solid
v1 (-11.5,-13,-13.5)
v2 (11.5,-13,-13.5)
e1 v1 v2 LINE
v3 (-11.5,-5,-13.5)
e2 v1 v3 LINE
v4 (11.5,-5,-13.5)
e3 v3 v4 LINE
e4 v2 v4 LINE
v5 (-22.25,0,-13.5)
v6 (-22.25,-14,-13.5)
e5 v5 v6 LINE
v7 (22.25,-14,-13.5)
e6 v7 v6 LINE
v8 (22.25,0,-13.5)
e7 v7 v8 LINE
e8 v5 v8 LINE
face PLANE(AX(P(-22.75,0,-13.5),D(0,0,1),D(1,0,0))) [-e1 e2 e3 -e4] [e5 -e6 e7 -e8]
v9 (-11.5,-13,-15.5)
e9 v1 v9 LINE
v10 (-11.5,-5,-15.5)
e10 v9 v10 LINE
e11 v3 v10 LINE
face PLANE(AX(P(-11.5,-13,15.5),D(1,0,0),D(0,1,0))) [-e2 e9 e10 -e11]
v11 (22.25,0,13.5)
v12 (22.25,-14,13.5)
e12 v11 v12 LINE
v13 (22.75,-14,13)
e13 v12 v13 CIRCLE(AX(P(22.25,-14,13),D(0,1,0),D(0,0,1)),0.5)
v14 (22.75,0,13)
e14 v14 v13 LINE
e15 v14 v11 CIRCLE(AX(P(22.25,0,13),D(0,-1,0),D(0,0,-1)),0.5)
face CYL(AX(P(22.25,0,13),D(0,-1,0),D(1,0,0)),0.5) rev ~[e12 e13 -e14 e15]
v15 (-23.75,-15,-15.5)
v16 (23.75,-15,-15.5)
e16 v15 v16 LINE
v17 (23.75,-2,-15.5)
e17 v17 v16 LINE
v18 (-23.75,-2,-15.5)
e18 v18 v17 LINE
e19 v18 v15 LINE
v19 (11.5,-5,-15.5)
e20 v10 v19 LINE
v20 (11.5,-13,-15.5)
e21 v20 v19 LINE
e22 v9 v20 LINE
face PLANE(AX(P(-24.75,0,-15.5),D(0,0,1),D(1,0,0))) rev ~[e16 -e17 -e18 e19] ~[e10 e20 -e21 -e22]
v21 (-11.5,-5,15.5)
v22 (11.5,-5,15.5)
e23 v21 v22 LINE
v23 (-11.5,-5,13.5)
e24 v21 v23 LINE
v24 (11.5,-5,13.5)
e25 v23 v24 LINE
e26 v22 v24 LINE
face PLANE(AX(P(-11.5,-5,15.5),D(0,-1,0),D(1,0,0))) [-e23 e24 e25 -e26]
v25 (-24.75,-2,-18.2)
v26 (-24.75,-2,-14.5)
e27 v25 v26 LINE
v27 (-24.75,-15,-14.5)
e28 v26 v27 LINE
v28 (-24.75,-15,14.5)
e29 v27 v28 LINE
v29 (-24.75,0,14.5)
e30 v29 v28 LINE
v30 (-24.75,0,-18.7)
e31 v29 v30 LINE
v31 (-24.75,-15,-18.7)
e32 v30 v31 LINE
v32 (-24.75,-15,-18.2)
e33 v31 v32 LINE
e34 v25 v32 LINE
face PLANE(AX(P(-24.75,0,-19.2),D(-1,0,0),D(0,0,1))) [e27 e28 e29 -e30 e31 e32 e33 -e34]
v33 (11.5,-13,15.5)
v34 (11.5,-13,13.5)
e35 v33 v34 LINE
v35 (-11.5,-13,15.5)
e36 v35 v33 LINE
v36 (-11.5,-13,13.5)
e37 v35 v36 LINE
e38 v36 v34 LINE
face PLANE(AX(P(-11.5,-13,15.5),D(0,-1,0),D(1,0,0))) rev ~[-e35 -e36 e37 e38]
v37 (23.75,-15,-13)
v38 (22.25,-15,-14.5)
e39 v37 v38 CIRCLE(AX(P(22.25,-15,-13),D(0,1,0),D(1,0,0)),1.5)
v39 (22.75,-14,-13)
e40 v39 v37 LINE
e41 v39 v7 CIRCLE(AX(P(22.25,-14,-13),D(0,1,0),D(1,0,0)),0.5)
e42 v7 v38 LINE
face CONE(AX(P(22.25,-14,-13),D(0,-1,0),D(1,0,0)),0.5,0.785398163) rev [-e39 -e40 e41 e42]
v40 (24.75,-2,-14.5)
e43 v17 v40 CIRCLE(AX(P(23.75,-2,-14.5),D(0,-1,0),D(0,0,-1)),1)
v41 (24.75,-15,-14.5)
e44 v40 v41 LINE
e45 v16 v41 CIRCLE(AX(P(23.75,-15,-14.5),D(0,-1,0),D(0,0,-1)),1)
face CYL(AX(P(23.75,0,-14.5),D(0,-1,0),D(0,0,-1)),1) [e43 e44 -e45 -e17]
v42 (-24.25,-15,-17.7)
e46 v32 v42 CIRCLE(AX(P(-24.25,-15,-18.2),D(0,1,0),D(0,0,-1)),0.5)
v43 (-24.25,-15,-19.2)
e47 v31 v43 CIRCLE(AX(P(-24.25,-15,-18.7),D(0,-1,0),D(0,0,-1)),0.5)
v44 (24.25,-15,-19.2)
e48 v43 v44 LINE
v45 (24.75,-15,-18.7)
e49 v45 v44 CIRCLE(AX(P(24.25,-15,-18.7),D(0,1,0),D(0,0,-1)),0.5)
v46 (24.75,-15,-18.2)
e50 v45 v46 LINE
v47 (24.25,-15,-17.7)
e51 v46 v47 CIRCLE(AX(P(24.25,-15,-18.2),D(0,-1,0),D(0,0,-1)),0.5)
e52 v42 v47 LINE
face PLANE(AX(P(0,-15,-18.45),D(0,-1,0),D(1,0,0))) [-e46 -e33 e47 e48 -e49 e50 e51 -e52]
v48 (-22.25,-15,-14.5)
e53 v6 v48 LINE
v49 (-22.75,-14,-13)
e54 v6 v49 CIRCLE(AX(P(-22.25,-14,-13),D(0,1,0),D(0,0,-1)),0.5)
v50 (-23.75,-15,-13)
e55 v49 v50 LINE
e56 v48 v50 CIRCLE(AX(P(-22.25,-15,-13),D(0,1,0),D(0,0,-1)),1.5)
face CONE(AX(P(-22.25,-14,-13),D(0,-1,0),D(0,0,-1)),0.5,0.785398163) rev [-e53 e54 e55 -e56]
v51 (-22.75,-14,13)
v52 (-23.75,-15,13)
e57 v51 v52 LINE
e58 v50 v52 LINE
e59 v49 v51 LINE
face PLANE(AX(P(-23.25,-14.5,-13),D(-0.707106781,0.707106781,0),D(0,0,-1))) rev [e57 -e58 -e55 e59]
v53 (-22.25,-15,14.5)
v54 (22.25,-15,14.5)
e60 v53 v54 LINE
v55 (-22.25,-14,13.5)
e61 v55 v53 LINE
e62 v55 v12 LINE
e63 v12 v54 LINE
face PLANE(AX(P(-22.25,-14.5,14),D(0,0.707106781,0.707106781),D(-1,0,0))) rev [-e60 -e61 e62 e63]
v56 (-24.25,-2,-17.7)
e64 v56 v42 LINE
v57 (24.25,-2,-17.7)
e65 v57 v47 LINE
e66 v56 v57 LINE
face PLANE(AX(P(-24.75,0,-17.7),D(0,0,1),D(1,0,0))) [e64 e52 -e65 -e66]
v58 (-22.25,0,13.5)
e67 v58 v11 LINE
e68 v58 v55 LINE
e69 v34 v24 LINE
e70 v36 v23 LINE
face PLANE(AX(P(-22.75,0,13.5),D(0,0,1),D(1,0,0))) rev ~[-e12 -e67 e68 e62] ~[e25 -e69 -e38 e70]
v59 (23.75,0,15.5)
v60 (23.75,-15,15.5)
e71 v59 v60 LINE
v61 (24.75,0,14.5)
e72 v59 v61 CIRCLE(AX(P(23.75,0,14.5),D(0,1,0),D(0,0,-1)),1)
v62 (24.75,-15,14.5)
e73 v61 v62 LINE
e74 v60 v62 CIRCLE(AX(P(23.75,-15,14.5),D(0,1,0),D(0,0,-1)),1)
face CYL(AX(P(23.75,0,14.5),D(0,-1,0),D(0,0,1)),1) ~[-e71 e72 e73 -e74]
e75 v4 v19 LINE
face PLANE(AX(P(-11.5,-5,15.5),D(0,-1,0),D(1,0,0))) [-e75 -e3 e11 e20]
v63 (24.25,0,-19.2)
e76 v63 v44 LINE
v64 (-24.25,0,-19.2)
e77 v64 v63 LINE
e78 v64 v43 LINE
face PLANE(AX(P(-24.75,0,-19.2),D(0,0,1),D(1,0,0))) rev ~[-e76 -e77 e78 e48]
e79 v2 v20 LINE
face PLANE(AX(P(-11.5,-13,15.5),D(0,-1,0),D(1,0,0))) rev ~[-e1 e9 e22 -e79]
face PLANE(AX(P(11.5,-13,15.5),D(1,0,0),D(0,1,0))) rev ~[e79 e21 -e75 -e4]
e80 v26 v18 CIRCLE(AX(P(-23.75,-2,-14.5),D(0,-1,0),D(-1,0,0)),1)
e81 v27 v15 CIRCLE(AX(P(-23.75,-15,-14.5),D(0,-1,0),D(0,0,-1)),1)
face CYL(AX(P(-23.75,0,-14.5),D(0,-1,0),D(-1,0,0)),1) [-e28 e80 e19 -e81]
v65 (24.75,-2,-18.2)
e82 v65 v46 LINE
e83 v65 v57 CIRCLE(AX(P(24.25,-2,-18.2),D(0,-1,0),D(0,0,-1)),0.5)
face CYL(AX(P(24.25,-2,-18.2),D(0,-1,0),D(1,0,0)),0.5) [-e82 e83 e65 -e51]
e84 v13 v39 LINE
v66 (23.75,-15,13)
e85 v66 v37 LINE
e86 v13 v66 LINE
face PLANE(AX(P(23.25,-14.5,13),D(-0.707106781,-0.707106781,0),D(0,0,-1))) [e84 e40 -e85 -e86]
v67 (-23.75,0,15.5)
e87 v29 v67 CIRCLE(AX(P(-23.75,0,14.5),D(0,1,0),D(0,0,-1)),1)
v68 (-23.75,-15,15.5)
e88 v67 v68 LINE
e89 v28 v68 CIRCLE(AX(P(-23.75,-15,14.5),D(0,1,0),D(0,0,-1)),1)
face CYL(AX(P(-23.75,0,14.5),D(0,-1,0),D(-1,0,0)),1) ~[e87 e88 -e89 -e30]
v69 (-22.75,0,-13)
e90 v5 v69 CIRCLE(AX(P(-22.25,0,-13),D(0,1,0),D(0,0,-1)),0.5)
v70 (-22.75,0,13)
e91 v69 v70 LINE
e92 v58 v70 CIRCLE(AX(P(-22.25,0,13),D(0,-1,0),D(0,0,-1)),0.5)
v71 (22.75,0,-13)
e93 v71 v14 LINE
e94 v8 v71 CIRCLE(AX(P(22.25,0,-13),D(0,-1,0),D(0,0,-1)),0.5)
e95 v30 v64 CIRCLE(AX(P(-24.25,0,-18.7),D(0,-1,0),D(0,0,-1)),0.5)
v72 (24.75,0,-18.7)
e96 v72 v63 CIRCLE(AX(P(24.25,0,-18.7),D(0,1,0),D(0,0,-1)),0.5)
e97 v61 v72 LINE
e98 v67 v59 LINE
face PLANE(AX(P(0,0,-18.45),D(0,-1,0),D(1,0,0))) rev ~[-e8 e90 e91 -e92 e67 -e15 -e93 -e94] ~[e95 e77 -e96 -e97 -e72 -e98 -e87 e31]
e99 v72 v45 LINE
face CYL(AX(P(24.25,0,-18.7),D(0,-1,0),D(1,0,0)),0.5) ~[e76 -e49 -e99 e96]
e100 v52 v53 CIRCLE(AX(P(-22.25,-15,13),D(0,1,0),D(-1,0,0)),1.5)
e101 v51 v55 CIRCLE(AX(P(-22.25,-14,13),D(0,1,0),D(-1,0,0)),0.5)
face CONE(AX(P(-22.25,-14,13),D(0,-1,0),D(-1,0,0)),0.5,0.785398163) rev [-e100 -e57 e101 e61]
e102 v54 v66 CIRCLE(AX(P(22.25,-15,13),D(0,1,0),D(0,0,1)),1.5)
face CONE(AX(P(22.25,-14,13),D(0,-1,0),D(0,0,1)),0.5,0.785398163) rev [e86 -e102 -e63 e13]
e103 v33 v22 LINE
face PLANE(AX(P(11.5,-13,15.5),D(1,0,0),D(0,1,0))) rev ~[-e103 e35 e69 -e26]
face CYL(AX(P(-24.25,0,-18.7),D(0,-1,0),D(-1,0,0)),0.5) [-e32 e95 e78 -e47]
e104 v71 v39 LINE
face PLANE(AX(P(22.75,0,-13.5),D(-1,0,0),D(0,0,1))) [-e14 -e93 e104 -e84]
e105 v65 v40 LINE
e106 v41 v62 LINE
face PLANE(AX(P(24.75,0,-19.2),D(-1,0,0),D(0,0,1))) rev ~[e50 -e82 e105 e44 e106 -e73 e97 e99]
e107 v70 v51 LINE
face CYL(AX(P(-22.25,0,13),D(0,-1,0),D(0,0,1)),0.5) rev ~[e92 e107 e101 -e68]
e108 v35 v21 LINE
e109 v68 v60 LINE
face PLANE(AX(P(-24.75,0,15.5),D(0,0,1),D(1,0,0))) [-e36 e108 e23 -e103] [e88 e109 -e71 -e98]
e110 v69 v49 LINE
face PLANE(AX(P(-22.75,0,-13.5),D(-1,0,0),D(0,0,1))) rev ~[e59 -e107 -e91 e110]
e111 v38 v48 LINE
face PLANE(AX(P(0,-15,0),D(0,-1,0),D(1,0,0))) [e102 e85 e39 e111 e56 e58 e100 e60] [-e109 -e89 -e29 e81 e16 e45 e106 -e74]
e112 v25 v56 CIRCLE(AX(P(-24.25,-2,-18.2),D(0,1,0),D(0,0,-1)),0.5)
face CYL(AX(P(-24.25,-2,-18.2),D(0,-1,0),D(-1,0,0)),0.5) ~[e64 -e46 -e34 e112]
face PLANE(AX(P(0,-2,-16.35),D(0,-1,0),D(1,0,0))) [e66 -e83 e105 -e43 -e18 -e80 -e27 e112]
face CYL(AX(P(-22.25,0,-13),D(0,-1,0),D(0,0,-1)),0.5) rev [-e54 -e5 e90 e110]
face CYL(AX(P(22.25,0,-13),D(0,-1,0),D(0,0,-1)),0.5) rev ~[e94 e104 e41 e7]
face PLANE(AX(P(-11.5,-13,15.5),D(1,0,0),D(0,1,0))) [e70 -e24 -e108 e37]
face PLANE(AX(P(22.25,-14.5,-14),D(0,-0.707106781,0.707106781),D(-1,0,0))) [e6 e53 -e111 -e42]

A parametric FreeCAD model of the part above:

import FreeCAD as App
import Part
import Sketcher

V = App.Vector


def edges_at(feature, points):
    """Names of the edges that pass closest to the given points."""
    edges = feature.Shape.Edges
    near = lambda p: min(range(len(edges)), key=lambda i: edges[i].distToShape(Part.Vertex(*p))[0])
    return sorted({f"Edge{near(p) + 1}" for p in points})


def add_polygon(sketch, points):
    """Adds a closed chain of lines whose ends are joined by coincident constraints."""
    first, n = sketch.GeometryCount, len(points)
    for a, b in zip(points, points[1:] + points[:1]):
        sketch.addGeometry(Part.LineSegment(App.Vector(*a, 0), App.Vector(*b, 0)), False)
    for i in range(n):
        sketch.addConstraint(Sketcher.Constraint("Coincident", first + i, 2, first + (i + 1) % n, 1))

doc = App.newDocument("Part")
body = doc.addObject("PartDesign::Body", "Body")

# Sketch on XZ plane
sketch1 = doc.addObject("Sketcher::SketchObject", "Sketch")
body.addObject(sketch1)
sketch1.AttachmentSupport = (doc.XZ_Plane, [""])
sketch1.MapMode = "FlatFace"
add_polygon(sketch1, [(-25, 16), (-25, -16), (25, -16), (25, 16)])  # lines 0-3
add_polygon(sketch1, [(23, -14), (-23, -14), (-23, 14), (23, 14)])  # lines 4-7
sketch1.addConstraint([
    Sketcher.Constraint("Vertical", 0),
    Sketcher.Constraint("Horizontal", 1),
    Sketcher.Constraint("Vertical", 2),
    Sketcher.Constraint("Horizontal", 3),
    Sketcher.Constraint("Horizontal", 4),
    Sketcher.Constraint("Vertical", 5),
    Sketcher.Constraint("Horizontal", 6),
    Sketcher.Constraint("Vertical", 7),
    Sketcher.Constraint("Symmetric", 0, 2, 2, 2, -1, 1),
    Sketcher.Constraint("Symmetric", 4, 2, 6, 2, -1, 1),
    Sketcher.Constraint("DistanceY", 0, 2, 0, 1, 31.0),
    Sketcher.Constraint("DistanceY", 5, 1, 5, 2, 27.0),
    Sketcher.Constraint("DistanceX", 1, 1, 1, 2, 49.5),
    Sketcher.Constraint("DistanceX", 4, 2, 4, 1, 45.5),
])
pad1 = doc.addObject("PartDesign::Pad", "Pad")
body.addObject(pad1)
pad1.Profile = sketch1
pad1.Length = 15

# Sketch on XY plane
sketch2 = doc.addObject("Sketcher::SketchObject", "Sketch001")
body.addObject(sketch2)
sketch2.AttachmentSupport = (doc.XY_Plane, [""])
sketch2.MapMode = "FlatFace"
sketch2.AttachmentOffset = App.Placement(V(0, 0, 15.5), App.Rotation())
add_polygon(sketch2, [(-12, -5), (-12, -13), (12, -13), (12, -5)])  # lines 0-3
sketch2.addConstraint([
    Sketcher.Constraint("Vertical", 0),
    Sketcher.Constraint("Horizontal", 1),
    Sketcher.Constraint("Vertical", 2),
    Sketcher.Constraint("Horizontal", 3),
    Sketcher.Constraint("DistanceX", 1, 1, 1, 2, 23.0),
    Sketcher.Constraint("DistanceY", 0, 2, 0, 1, 8.0),
    Sketcher.Constraint("DistanceY", 0, 2, -1, 1, 13.0),
    Sketcher.Constraint("DistanceX", 0, 2, -1, 1, 11.5),
])
pocket1 = doc.addObject("PartDesign::Pocket", "Pocket")
body.addObject(pocket1)
pocket1.Profile = sketch2
pocket1.Type = "ThroughAll"
doc.recompute()

fillet = doc.addObject("PartDesign::Fillet", "Fillet")
body.addObject(fillet)
fillet.Base = (pocket1, edges_at(pocket1, [
    (24.75, -7.5, 15.5),
    (24.75, -7.5, -15.5),
    (-24.75, -7.5, 15.5),
    (-24.75, -7.5, -15.5),
]))
fillet.Radius = 1
doc.recompute()

fillet2 = doc.addObject("PartDesign::Fillet", "Fillet001")
body.addObject(fillet2)
fillet2.Base = (fillet, edges_at(fillet, [
    (-22.75, -7.5, 13.5),
    (22.75, -7.5, 13.5),
    (22.75, -7.5, -13.5),
    (-22.75, -7.5, -13.5),
]))
fillet2.Radius = 0.5
body2 = doc.addObject("PartDesign::Body", "Body001")

# Sketch on XZ plane
sketch3 = doc.addObject("Sketcher::SketchObject", "Sketch002")
body2.addObject(sketch3)
sketch3.AttachmentSupport = (doc.getObject("XZ_Plane001"), [""])
sketch3.MapMode = "FlatFace"
add_polygon(sketch3, [(-24.8, -17.7), (-24.8, -19.2), (24.8, -19.2), (24.8, -17.7)])  # lines 0-3
sketch3.addConstraint([
    Sketcher.Constraint("Vertical", 0),
    Sketcher.Constraint("Horizontal", 1),
    Sketcher.Constraint("Vertical", 2),
    Sketcher.Constraint("Horizontal", 3),
    Sketcher.Constraint("DistanceX", 1, 1, 1, 2, 49.5),
    Sketcher.Constraint("DistanceY", 0, 2, 0, 1, 1.5),
    Sketcher.Constraint("DistanceY", 0, 2, -1, 1, 19.2),
    Sketcher.Constraint("DistanceX", 0, 2, -1, 1, 24.75),
])
pad2 = doc.addObject("PartDesign::Pad", "Pad001")
body2.addObject(pad2)
pad2.Profile = sketch3
pad2.Length = 15
body.AllowCompound = True
doc.recompute()

boolean = doc.addObject("PartDesign::Boolean", "Boolean")
body.addObject(boolean)
boolean.Type = "Fuse"
boolean.addObjects([body2])

# Sketch on XZ plane
sketch4 = doc.addObject("Sketcher::SketchObject", "Sketch003")
body.addObject(sketch4)
sketch4.AttachmentSupport = (doc.XZ_Plane, [""])
sketch4.MapMode = "FlatFace"
add_polygon(sketch4, [(-25, -14), (-25, -19), (25, -19), (25, -14)])  # lines 0-3
sketch4.addConstraint([
    Sketcher.Constraint("Vertical", 0),
    Sketcher.Constraint("Horizontal", 1),
    Sketcher.Constraint("Vertical", 2),
    Sketcher.Constraint("Horizontal", 3),
    Sketcher.Constraint("DistanceX", 1, 1, 1, 2, 49.5),
    Sketcher.Constraint("DistanceY", 0, 2, 0, 1, 5.7),
    Sketcher.Constraint("DistanceY", 0, 2, -1, 1, 19.2),
    Sketcher.Constraint("DistanceX", 0, 2, -1, 1, 24.75),
])
pad3 = doc.addObject("PartDesign::Pad", "Pad002")
body.addObject(pad3)
pad3.Profile = sketch4
pad3.Length = 2
doc.recompute()

fillet3 = doc.addObject("PartDesign::Fillet", "Fillet002")
body.addObject(fillet3)
fillet3.Base = (pad3, edges_at(pad3, [
    (24.75, -7.5, -19.2),
    (24.75, -8.5, -17.7),
    (-24.75, -7.5, -19.2),
    (-24.75, -8.5, -17.7),
]))
fillet3.Radius = 0.5
doc.recompute()

chamfer = doc.addObject("PartDesign::Chamfer", "Chamfer")
body.addObject(chamfer)
chamfer.Base = (fillet3, edges_at(fillet3, [(0, -15, 13.5)]))
chamfer.Size = 1

doc.recompute()
